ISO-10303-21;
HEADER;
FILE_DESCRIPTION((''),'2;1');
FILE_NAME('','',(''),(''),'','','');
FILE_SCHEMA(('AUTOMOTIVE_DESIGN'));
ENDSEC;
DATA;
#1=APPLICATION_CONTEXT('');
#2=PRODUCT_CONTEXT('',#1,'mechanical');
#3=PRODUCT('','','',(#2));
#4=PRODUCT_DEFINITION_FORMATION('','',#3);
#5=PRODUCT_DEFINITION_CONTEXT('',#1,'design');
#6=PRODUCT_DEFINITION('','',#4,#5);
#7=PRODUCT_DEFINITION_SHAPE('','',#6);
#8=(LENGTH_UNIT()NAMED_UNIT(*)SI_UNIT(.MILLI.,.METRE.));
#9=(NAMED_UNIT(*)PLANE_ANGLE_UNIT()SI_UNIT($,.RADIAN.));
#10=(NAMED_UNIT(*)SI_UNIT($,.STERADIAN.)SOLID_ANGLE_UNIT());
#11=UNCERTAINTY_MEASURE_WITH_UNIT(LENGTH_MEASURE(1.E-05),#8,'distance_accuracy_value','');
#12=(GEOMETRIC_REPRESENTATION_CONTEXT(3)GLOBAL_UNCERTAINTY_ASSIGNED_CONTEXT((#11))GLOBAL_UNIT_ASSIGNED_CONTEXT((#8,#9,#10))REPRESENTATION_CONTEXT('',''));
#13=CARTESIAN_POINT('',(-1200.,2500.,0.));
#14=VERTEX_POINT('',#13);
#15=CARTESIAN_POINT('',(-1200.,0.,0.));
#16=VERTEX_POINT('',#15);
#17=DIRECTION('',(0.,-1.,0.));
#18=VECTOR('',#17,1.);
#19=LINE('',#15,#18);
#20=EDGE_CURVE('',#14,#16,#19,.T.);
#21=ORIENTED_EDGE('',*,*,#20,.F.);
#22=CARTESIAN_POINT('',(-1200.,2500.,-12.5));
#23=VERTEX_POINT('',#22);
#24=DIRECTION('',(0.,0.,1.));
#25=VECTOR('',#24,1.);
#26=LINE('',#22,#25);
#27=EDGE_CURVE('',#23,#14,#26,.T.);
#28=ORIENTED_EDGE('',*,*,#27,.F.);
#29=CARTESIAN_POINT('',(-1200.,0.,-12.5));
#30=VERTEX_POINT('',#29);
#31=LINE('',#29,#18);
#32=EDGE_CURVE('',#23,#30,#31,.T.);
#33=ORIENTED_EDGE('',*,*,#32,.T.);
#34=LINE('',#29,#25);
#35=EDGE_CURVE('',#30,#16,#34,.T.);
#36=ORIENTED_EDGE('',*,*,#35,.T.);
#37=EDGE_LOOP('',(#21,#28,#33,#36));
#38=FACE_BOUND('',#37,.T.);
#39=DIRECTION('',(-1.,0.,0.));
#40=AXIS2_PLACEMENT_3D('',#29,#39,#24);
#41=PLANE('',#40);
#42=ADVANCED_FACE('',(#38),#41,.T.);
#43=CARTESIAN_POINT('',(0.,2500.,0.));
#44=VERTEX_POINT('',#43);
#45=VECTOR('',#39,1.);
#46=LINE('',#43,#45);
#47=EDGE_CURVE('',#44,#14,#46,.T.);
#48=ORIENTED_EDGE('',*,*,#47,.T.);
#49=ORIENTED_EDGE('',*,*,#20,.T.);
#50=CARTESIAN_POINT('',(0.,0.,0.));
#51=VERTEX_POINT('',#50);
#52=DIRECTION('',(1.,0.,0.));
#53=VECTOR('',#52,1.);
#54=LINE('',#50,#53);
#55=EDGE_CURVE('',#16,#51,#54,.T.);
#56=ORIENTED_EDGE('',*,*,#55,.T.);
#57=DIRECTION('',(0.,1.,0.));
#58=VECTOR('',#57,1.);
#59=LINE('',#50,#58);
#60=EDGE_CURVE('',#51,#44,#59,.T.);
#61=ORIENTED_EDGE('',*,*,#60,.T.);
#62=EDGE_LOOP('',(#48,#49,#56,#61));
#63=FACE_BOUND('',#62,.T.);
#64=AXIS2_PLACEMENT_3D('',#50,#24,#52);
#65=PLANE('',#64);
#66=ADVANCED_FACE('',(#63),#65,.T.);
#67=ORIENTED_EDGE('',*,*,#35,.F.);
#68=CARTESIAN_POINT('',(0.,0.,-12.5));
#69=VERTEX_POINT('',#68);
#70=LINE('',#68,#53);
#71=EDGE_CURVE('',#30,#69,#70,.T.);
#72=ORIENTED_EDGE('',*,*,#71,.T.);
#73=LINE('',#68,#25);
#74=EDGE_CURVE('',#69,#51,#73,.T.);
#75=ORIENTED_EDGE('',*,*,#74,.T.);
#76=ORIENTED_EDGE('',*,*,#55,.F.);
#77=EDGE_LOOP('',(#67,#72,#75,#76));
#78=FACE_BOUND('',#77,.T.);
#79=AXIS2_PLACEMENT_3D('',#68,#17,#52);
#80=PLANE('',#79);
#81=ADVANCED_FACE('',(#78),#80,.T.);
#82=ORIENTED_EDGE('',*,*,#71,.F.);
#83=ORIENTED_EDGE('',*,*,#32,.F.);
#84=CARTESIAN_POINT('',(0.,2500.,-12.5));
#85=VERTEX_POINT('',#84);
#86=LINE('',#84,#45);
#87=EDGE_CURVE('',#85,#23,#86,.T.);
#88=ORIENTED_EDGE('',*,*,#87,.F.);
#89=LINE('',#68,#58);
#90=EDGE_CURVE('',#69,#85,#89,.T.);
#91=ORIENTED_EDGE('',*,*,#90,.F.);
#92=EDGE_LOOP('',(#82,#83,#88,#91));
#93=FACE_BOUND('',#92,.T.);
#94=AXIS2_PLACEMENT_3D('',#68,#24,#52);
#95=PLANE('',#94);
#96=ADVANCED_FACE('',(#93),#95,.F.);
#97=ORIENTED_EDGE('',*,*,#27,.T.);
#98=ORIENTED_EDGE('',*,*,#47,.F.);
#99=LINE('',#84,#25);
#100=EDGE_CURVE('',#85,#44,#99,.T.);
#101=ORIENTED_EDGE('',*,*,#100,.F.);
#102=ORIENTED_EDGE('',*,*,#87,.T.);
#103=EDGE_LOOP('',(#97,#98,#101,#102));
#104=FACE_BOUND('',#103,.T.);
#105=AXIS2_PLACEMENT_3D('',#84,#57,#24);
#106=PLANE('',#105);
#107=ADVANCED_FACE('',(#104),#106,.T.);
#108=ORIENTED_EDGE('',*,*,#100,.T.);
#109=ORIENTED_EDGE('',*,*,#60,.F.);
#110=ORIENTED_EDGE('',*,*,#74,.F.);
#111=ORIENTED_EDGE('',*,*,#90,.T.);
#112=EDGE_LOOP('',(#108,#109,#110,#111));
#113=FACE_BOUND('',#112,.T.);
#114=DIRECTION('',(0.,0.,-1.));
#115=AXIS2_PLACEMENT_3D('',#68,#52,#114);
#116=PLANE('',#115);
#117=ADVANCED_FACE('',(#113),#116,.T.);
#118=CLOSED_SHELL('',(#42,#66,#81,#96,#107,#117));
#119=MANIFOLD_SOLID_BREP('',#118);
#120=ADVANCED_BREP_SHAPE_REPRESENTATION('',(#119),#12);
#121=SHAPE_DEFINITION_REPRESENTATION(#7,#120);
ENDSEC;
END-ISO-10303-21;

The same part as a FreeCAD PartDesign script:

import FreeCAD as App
import Part
import Sketcher
from FreeCAD import Vector

doc = App.newDocument("Part")
body = doc.addObject("PartDesign::Body", "Body")

# Sketch on XY plane
sketch1 = body.newObject("Sketcher::SketchObject", "Sketch")
sketch1.AttachmentSupport = (doc.getObject("XY_Plane"), [""])
sketch1.MapMode = "FlatFace"
sketch1.addGeometry([
    Part.LineSegment(Vector(-1200, 2500, 0), Vector(-1200, 0, 0)),
    Part.LineSegment(Vector(-1200, 0, 0), Vector(0, 0, 0)),
    Part.LineSegment(Vector(0, 0, 0), Vector(0, 2500, 0)),
    Part.LineSegment(Vector(0, 2500, 0), Vector(-1200, 2500, 0)),
], False)
sketch1.addConstraint([
    Sketcher.Constraint("Coincident", 0, 2, 1, 1),
    Sketcher.Constraint("Coincident", 1, 2, 2, 1),
    Sketcher.Constraint("Coincident", 2, 2, 3, 1),
    Sketcher.Constraint("Coincident", 3, 2, 0, 1),
    Sketcher.Constraint("Vertical", 0),
    Sketcher.Constraint("Horizontal", 1),
    Sketcher.Constraint("Vertical", 2),
    Sketcher.Constraint("Horizontal", 3),
    Sketcher.Constraint("Coincident", 1, 2, -1, 1),
    Sketcher.Constraint("DistanceX", 1, 1, 1, 2, 1200.0),
    Sketcher.Constraint("DistanceY", 0, 2, 0, 1, 2500.0),
])
pad1 = body.newObject("PartDesign::Pad", "Pad")
pad1.Profile = sketch1
pad1.Length = 12.5
pad1.Reversed = True

doc.recompute()
